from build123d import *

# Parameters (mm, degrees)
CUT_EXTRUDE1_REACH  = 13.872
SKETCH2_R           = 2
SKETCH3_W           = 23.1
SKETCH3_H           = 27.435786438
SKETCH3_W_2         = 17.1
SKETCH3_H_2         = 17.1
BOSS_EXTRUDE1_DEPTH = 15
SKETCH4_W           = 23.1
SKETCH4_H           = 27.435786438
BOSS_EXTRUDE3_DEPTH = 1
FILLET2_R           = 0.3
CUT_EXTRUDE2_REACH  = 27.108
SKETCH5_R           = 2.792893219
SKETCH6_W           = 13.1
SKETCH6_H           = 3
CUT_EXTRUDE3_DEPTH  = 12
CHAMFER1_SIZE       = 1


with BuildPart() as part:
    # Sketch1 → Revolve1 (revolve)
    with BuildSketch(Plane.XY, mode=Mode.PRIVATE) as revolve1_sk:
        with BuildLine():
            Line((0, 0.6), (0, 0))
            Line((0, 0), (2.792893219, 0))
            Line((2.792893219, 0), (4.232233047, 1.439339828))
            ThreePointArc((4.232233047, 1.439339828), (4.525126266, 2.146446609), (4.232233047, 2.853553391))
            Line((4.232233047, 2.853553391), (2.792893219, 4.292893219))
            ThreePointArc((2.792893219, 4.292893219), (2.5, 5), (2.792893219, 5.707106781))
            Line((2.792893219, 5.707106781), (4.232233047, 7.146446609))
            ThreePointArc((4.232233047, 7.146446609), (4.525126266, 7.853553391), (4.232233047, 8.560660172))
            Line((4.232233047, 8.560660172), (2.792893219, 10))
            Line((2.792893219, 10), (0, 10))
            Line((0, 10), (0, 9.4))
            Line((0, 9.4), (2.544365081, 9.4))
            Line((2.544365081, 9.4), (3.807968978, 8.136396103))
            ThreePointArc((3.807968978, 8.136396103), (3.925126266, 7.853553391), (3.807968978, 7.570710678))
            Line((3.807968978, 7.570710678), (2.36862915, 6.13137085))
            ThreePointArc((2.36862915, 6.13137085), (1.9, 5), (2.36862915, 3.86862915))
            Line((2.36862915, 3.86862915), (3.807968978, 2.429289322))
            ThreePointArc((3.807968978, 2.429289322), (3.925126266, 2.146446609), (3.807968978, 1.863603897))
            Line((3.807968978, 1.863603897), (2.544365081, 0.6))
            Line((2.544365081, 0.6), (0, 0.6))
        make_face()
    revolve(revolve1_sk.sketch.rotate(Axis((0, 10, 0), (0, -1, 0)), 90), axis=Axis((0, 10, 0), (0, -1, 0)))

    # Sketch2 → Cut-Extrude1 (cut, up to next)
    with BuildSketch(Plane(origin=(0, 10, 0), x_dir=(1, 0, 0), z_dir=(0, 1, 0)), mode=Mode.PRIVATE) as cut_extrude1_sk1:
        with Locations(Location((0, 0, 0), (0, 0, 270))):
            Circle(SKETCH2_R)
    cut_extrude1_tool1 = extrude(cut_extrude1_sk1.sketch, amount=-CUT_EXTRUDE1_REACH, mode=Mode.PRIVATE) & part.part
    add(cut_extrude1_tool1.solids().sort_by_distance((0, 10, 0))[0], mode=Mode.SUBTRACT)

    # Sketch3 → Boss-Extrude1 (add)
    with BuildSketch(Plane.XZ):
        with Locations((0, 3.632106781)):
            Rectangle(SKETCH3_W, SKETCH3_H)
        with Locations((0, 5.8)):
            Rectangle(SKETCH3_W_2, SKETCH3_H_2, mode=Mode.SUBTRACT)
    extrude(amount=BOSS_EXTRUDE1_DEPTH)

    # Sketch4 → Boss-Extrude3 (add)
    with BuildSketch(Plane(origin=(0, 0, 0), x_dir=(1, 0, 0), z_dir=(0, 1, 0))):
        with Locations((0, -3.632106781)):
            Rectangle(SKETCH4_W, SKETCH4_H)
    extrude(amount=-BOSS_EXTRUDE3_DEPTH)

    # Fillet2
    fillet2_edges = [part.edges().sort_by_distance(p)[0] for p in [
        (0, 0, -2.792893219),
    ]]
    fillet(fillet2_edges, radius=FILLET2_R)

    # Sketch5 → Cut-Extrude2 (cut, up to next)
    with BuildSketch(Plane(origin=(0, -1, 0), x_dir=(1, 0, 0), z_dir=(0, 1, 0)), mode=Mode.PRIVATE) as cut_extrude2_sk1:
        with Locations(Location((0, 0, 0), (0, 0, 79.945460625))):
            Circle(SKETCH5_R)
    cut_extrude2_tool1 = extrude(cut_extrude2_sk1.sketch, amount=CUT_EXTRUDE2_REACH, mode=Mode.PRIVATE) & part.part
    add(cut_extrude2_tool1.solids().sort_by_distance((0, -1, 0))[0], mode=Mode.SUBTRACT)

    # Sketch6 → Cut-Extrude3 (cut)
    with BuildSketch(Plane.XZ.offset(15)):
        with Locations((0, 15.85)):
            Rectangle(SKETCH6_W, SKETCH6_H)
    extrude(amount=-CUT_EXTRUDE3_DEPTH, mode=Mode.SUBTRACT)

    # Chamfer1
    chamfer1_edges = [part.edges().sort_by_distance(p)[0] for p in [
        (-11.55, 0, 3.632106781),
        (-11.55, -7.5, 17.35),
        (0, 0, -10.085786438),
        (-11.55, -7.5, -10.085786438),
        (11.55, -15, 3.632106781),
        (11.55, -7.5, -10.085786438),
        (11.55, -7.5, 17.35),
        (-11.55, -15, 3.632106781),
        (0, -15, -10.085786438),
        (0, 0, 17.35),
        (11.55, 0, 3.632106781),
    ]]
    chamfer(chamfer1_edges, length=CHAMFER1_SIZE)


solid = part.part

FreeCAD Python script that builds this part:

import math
import FreeCAD as App
import Part
import Sketcher
from FreeCAD import Vector


def edges_at(feature, points):
    """Names of the edges that pass closest to the given points."""
    edges = feature.Shape.Edges
    near = lambda p: min(range(len(edges)), key=lambda i: edges[i].distToShape(Part.Vertex(*p))[0])
    return sorted({f"Edge{near(p) + 1}" for p in points})


def add_polygon(sketch, points):
    """Adds a closed chain of lines whose ends are joined by coincident constraints."""
    first, n = sketch.GeometryCount, len(points)
    for a, b in zip(points, points[1:] + points[:1]):
        sketch.addGeometry(Part.LineSegment(App.Vector(*a, 0), App.Vector(*b, 0)), False)
    for i in range(n):
        sketch.addConstraint(Sketcher.Constraint("Coincident", first + i, 2, first + (i + 1) % n, 1))

doc = App.newDocument("Part")
params = doc.addObject("Spreadsheet::Sheet", "Params")
for row, (alias, value) in enumerate([
    ("sketch1_radius", "1 mm"),
    ("sketch1_radius2", "0.4 mm"),
    ("sketch1_height", "0.6 mm"),
    ("revolution_angle", "360 deg"),
    ("sketch2_diameter", "4 mm"),
    ("sketch3_width", "23.1 mm"),
    ("sketch3_width2", "17.1 mm"),
    ("pad1_length", "15 mm"),
    ("sketch4_width", "23.1 mm"),
    ("pad2_length", "1 mm"),
    ("fillet_radius", "0.3 mm"),
    ("pocket2_length", "1.848528 mm"),
    ("sketch6_height", "3 mm"),
    ("sketch6_width", "13.1 mm"),
    ("pocket3_length", "12 mm"),
    ("chamfer_size", "1 mm"),
], start=1):
    params.set(f"A{row}", alias)
    params.set(f"B{row}", "=" + value)
    params.setAlias(f"B{row}", alias)

body = doc.addObject("PartDesign::Body", "Body")

# Sketch on XY plane
sketch1 = doc.addObject("Sketcher::SketchObject", "Sketch")
body.addObject(sketch1)
sketch1.AttachmentSupport = (doc.XY_Plane, [""])
sketch1.MapMode = "FlatFace"
sketch1.addGeometry(Part.LineSegment(Vector(0, 0.6, 0), Vector(0, 0, 0)), False)
sketch1.addGeometry(Part.LineSegment(Vector(0, 0, 0), Vector(2.79, 0, 0)), False)
sketch1.addGeometry(Part.LineSegment(Vector(2.79, 0, 0), Vector(4.23, 1.44, 0)), False)
sketch1.addGeometry(Part.ArcOfCircle(Part.Circle(Vector(3.53, 2.15, 0), Vector(0, 0, 1), 1), math.radians(-45), math.radians(45)), False)
sketch1.addGeometry(Part.LineSegment(Vector(4.23, 2.85, 0), Vector(2.79, 4.29, 0)), False)
sketch1.addGeometry(Part.ArcOfCircle(Part.Circle(Vector(3.5, 5, 0), Vector(0, 0, 1), 1), math.radians(135), math.radians(225)), False)
sketch1.addGeometry(Part.LineSegment(Vector(2.79, 5.71, 0), Vector(4.23, 7.15, 0)), False)
sketch1.addGeometry(Part.ArcOfCircle(Part.Circle(Vector(3.53, 7.85, 0), Vector(0, 0, 1), 1), math.radians(-45), math.radians(45)), False)
sketch1.addGeometry(Part.LineSegment(Vector(4.23, 8.56, 0), Vector(2.79, 10, 0)), False)
sketch1.addGeometry(Part.LineSegment(Vector(2.79, 10, 0), Vector(0, 10, 0)), False)
sketch1.addGeometry(Part.LineSegment(Vector(0, 10, 0), Vector(0, 9.4, 0)), False)
sketch1.addGeometry(Part.LineSegment(Vector(0, 9.4, 0), Vector(2.54, 9.4, 0)), False)
sketch1.addGeometry(Part.LineSegment(Vector(2.54, 9.4, 0), Vector(3.81, 8.14, 0)), False)
sketch1.addGeometry(Part.ArcOfCircle(Part.Circle(Vector(3.53, 7.85, 0), Vector(0, 0, 1), 0.4), math.radians(-45), math.radians(45)), False)
sketch1.addGeometry(Part.LineSegment(Vector(3.81, 7.57, 0), Vector(2.37, 6.13, 0)), False)
sketch1.addGeometry(Part.ArcOfCircle(Part.Circle(Vector(3.5, 5, 0), Vector(0, 0, 1), 1.6), math.radians(135), math.radians(225)), False)
sketch1.addGeometry(Part.LineSegment(Vector(2.37, 3.87, 0), Vector(3.81, 2.43, 0)), False)
sketch1.addGeometry(Part.ArcOfCircle(Part.Circle(Vector(3.53, 2.15, 0), Vector(0, 0, 1), 0.4), math.radians(-45), math.radians(45)), False)
sketch1.addGeometry(Part.LineSegment(Vector(3.81, 1.86, 0), Vector(2.54, 0.6, 0)), False)
sketch1.addGeometry(Part.LineSegment(Vector(2.54, 0.6, 0), Vector(0, 0.6, 0)), False)
sketch1.addConstraint(Sketcher.Constraint("Coincident", 0, 2, 1, 1))
sketch1.addConstraint(Sketcher.Constraint("Coincident", 1, 2, 2, 1))
sketch1.addConstraint(Sketcher.Constraint("Tangent", 2, 2, 3, 1))
sketch1.addConstraint(Sketcher.Constraint("Tangent", 3, 2, 4, 1))
sketch1.addConstraint(Sketcher.Constraint("Tangent", 4, 2, 5, 2))
sketch1.addConstraint(Sketcher.Constraint("Tangent", 5, 1, 6, 1))
sketch1.addConstraint(Sketcher.Constraint("Tangent", 6, 2, 7, 1))
sketch1.addConstraint(Sketcher.Constraint("Tangent", 7, 2, 8, 1))
sketch1.addConstraint(Sketcher.Constraint("Coincident", 8, 2, 9, 1))
sketch1.addConstraint(Sketcher.Constraint("Coincident", 9, 2, 10, 1))
sketch1.addConstraint(Sketcher.Constraint("Coincident", 10, 2, 11, 1))
sketch1.addConstraint(Sketcher.Constraint("Coincident", 11, 2, 12, 1))
sketch1.addConstraint(Sketcher.Constraint("Tangent", 12, 2, 13, 2))
sketch1.addConstraint(Sketcher.Constraint("Tangent", 13, 1, 14, 1))
sketch1.addConstraint(Sketcher.Constraint("Tangent", 14, 2, 15, 1))
sketch1.addConstraint(Sketcher.Constraint("Tangent", 15, 2, 16, 1))
sketch1.addConstraint(Sketcher.Constraint("Tangent", 16, 2, 17, 2))
sketch1.addConstraint(Sketcher.Constraint("Tangent", 17, 1, 18, 1))
sketch1.addConstraint(Sketcher.Constraint("Coincident", 18, 2, 19, 1))
sketch1.addConstraint(Sketcher.Constraint("Coincident", 19, 2, 0, 1))
sketch1.addConstraint(Sketcher.Constraint("Vertical", 0))
sketch1.addConstraint(Sketcher.Constraint("Horizontal", 1))
sketch1.addConstraint(Sketcher.Constraint("Horizontal", 9))
sketch1.addConstraint(Sketcher.Constraint("Vertical", 10))
sketch1.addConstraint(Sketcher.Constraint("Horizontal", 11))
sketch1.addConstraint(Sketcher.Constraint("Horizontal", 19))
sketch1.addConstraint(Sketcher.Constraint("Coincident", 0, 2, -1, 1))
sketch1.addConstraint(Sketcher.Constraint("Coincident", 13, 3, 7, 3))
sketch1.addConstraint(Sketcher.Constraint("Coincident", 15, 3, 5, 3))
sketch1.addConstraint(Sketcher.Constraint("Coincident", 17, 3, 3, 3))
sketch1.addConstraint(Sketcher.Constraint("Equal", 3, 5))
sketch1.addConstraint(Sketcher.Constraint("Equal", 5, 7))
sketch1.addConstraint(Sketcher.Constraint("Equal", 13, 17))
sketch1.addConstraint(Sketcher.Constraint("PointOnObject", 9, 2, -2))
sketch1.addConstraint(Sketcher.Constraint("Perpendicular", 2, 4))
sketch1.addConstraint(Sketcher.Constraint("Perpendicular", 4, 6))
sketch1.addConstraint(Sketcher.Constraint("Perpendicular", 6, 8))
sketch1.addConstraint(Sketcher.Constraint("Parallel", 8, 12))
sketch1.addConstraint(Sketcher.Constraint("Perpendicular", 12, 14))
sketch1.addConstraint(Sketcher.Constraint("Perpendicular", 16, 18))
sketch1.addConstraint(Sketcher.Constraint("Vertical", 3, 3, 7, 3))
sketch1.addConstraint(Sketcher.Constraint("Vertical", 2, 2, 3, 2))
sketch1.addConstraint(Sketcher.Constraint("Vertical", 1, 2, 4, 2))
sketch1.addConstraint(Sketcher.Constraint("Vertical", 5, 1, 8, 2))
sketch1.addConstraint(Sketcher.Constraint("Vertical", 11, 2, 18, 2))
sketch1.addConstraint(Sketcher.Constraint("Radius", 3, 1.0))
sketch1.addConstraint(Sketcher.Constraint("Radius", 13, 0.4))
sketch1.addConstraint(Sketcher.Constraint("DistanceY", 0, 2, 0, 1, 0.6))
sketch1.addConstraint(Sketcher.Constraint("DistanceY", -1, 1, 5, 3, 5.0))
sketch1.addConstraint(Sketcher.Constraint("DistanceX", -1, 1, 5, 3, 3.5))
sketch1.setExpression("Constraints[45]", "Params.sketch1_radius")
sketch1.setExpression("Constraints[46]", "Params.sketch1_radius2")
sketch1.setExpression("Constraints[47]", "Params.sketch1_height")
revolution = doc.addObject("PartDesign::Revolution", "Revolution")
body.addObject(revolution)
revolution.Profile = sketch1
revolution.ReferenceAxis = (sketch1, ["V_Axis"])
revolution.setExpression("Angle", "Params.revolution_angle")

# Sketch on XZ plane
sketch2 = doc.addObject("Sketcher::SketchObject", "Sketch001")
body.addObject(sketch2)
sketch2.AttachmentSupport = (doc.XZ_Plane, [""])
sketch2.MapMode = "FlatFace"
sketch2.AttachmentOffset = App.Placement(Vector(0, 0, -10), App.Rotation())
sketch2.addGeometry(Part.Circle(Vector(0, 0, 0), Vector(0, 0, 1), 2), False)
sketch2.addConstraint(Sketcher.Constraint("Coincident", 0, 3, -1, 1))
sketch2.addConstraint(Sketcher.Constraint("Diameter", 0, 4.0))
sketch2.setExpression("Constraints[1]", "Params.sketch2_diameter")
pocket1 = doc.addObject("PartDesign::Pocket", "Pocket")
body.addObject(pocket1)
pocket1.Profile = sketch2
pocket1.Type = "UpToFirst"
pocket1.Reversed = True

# Sketch on XZ plane
sketch3 = doc.addObject("Sketcher::SketchObject", "Sketch002")
body.addObject(sketch3)
sketch3.AttachmentSupport = (doc.XZ_Plane, [""])
sketch3.MapMode = "FlatFace"
add_polygon(sketch3, [(-12, 17), (-12, -10), (12, -10), (12, 17)])  # lines 0-3
add_polygon(sketch3, [(9, -3), (-9, -3), (-9, 14), (9, 14)])  # lines 4-7
sketch3.addConstraint(Sketcher.Constraint("Vertical", 0))
sketch3.addConstraint(Sketcher.Constraint("Horizontal", 1))
sketch3.addConstraint(Sketcher.Constraint("Vertical", 2))
sketch3.addConstraint(Sketcher.Constraint("Horizontal", 3))
sketch3.addConstraint(Sketcher.Constraint("Horizontal", 4))
sketch3.addConstraint(Sketcher.Constraint("Vertical", 5))
sketch3.addConstraint(Sketcher.Constraint("Horizontal", 6))
sketch3.addConstraint(Sketcher.Constraint("Vertical", 7))
sketch3.addConstraint(Sketcher.Constraint("Equal", 6, 5))
sketch3.addConstraint(Sketcher.Constraint("DistanceX", 1, 1, 1, 2, 23.1))
sketch3.addConstraint(Sketcher.Constraint("DistanceX", 4, 2, 4, 1, 17.1))
sketch3.addConstraint(Sketcher.Constraint("DistanceX", 0, 2, 4, 2, 3.0))
sketch3.addConstraint(Sketcher.Constraint("DistanceY", 5, 2, 3, 2, 3.0))
sketch3.addConstraint(Sketcher.Constraint("DistanceX", 0, 2, -1, 1, 11.55))
sketch3.addConstraint(Sketcher.Constraint("DistanceY", -1, 1, 2, 2, 17.35))
sketch3.addConstraint(Sketcher.Constraint("DistanceY", 0, 2, 0, 1, 27.435786))
sketch3.setExpression("Constraints[17]", "Params.sketch3_width")
sketch3.setExpression("Constraints[18]", "Params.sketch3_width2")
pad1 = doc.addObject("PartDesign::Pad", "Pad")
body.addObject(pad1)
pad1.Profile = sketch3
pad1.setExpression("Length", "Params.pad1_length")

# Sketch on XZ plane
sketch4 = doc.addObject("Sketcher::SketchObject", "Sketch003")
body.addObject(sketch4)
sketch4.AttachmentSupport = (doc.XZ_Plane, [""])
sketch4.MapMode = "FlatFace"
add_polygon(sketch4, [(-12, -10), (-12, 17), (12, 17), (12, -10)])  # lines 0-3
sketch4.addConstraint(Sketcher.Constraint("Vertical", 0))
sketch4.addConstraint(Sketcher.Constraint("Horizontal", 1))
sketch4.addConstraint(Sketcher.Constraint("Vertical", 2))
sketch4.addConstraint(Sketcher.Constraint("Horizontal", 3))
sketch4.addConstraint(Sketcher.Constraint("DistanceX", 1, 1, 1, 2, 23.1))
sketch4.addConstraint(Sketcher.Constraint("DistanceX", 0, 2, -1, 1, 11.55))
sketch4.addConstraint(Sketcher.Constraint("DistanceY", -1, 1, 0, 2, 17.35))
sketch4.addConstraint(Sketcher.Constraint("DistanceY", 0, 1, 0, 2, 27.435786))
sketch4.setExpression("Constraints[8]", "Params.sketch4_width")
pad2 = doc.addObject("PartDesign::Pad", "Pad001")
body.addObject(pad2)
pad2.Profile = sketch4
pad2.setExpression("Length", "Params.pad2_length")
doc.recompute()

fillet = doc.addObject("PartDesign::Fillet", "Fillet")
body.addObject(fillet)
fillet.Base = (pad2, edges_at(pad2, [(0, 0, -2.793)]))
fillet.setExpression("Radius", "Params.fillet_radius")

# Sketch on XZ plane
sketch5 = doc.addObject("Sketcher::SketchObject", "Sketch004")
body.addObject(sketch5)
sketch5.AttachmentSupport = (doc.XZ_Plane, [""])
sketch5.MapMode = "FlatFace"
sketch5.AttachmentOffset = App.Placement(Vector(0, 0, 1), App.Rotation())
sketch5.addGeometry(Part.Circle(Vector(0, 0, 0), Vector(0, 0, 1), 2.8), False)
sketch5.addConstraint(Sketcher.Constraint("Coincident", 0, 3, -1, 1))
sketch5.addConstraint(Sketcher.Constraint("Diameter", 0, 5.585786))
pocket2 = doc.addObject("PartDesign::Pocket", "Pocket001")
body.addObject(pocket2)
pocket2.Profile = sketch5
pocket2.setExpression("Length", "Params.pocket2_length")

# Sketch on XZ plane
sketch6 = doc.addObject("Sketcher::SketchObject", "Sketch005")
body.addObject(sketch6)
sketch6.AttachmentSupport = (doc.XZ_Plane, [""])
sketch6.MapMode = "FlatFace"
sketch6.AttachmentOffset = App.Placement(Vector(0, 0, 15), App.Rotation())
add_polygon(sketch6, [(-6.5, 17.4), (-6.5, 14.3), (6.5, 14.3), (6.5, 17.4)])  # lines 0-3
sketch6.addConstraint(Sketcher.Constraint("Vertical", 0))
sketch6.addConstraint(Sketcher.Constraint("Horizontal", 1))
sketch6.addConstraint(Sketcher.Constraint("Vertical", 2))
sketch6.addConstraint(Sketcher.Constraint("Horizontal", 3))
sketch6.addConstraint(Sketcher.Constraint("DistanceY", 0, 2, 0, 1, 3.0))
sketch6.addConstraint(Sketcher.Constraint("DistanceX", 1, 1, 1, 2, 13.1))
sketch6.addConstraint(Sketcher.Constraint("DistanceX", 0, 2, -1, 1, 6.55))
sketch6.addConstraint(Sketcher.Constraint("DistanceY", -1, 1, 0, 2, 14.35))
sketch6.setExpression("Constraints[8]", "Params.sketch6_height")
sketch6.setExpression("Constraints[9]", "Params.sketch6_width")
pocket3 = doc.addObject("PartDesign::Pocket", "Pocket002")
body.addObject(pocket3)
pocket3.Profile = sketch6
pocket3.setExpression("Length", "Params.pocket3_length")
doc.recompute()

chamfer = doc.addObject("PartDesign::Chamfer", "Chamfer")
body.addObject(chamfer)
chamfer.Base = (pocket3, edges_at(pocket3, [
    (-11.55, 0, 3.632),
    (-11.55, -7.5, 17.35),
    (0, 0, -10.086),
    (-11.55, -7.5, -10.086),
    (11.55, -15, 3.632),
    (11.55, -7.5, -10.086),
    (11.55, -7.5, 17.35),
    (-11.55, -15, 3.632),
    (0, -15, -10.086),
    (0, 0, 17.35),
    (11.55, 0, 3.632),
]))
chamfer.setExpression("Size", "Params.chamfer_size")

doc.recompute()
